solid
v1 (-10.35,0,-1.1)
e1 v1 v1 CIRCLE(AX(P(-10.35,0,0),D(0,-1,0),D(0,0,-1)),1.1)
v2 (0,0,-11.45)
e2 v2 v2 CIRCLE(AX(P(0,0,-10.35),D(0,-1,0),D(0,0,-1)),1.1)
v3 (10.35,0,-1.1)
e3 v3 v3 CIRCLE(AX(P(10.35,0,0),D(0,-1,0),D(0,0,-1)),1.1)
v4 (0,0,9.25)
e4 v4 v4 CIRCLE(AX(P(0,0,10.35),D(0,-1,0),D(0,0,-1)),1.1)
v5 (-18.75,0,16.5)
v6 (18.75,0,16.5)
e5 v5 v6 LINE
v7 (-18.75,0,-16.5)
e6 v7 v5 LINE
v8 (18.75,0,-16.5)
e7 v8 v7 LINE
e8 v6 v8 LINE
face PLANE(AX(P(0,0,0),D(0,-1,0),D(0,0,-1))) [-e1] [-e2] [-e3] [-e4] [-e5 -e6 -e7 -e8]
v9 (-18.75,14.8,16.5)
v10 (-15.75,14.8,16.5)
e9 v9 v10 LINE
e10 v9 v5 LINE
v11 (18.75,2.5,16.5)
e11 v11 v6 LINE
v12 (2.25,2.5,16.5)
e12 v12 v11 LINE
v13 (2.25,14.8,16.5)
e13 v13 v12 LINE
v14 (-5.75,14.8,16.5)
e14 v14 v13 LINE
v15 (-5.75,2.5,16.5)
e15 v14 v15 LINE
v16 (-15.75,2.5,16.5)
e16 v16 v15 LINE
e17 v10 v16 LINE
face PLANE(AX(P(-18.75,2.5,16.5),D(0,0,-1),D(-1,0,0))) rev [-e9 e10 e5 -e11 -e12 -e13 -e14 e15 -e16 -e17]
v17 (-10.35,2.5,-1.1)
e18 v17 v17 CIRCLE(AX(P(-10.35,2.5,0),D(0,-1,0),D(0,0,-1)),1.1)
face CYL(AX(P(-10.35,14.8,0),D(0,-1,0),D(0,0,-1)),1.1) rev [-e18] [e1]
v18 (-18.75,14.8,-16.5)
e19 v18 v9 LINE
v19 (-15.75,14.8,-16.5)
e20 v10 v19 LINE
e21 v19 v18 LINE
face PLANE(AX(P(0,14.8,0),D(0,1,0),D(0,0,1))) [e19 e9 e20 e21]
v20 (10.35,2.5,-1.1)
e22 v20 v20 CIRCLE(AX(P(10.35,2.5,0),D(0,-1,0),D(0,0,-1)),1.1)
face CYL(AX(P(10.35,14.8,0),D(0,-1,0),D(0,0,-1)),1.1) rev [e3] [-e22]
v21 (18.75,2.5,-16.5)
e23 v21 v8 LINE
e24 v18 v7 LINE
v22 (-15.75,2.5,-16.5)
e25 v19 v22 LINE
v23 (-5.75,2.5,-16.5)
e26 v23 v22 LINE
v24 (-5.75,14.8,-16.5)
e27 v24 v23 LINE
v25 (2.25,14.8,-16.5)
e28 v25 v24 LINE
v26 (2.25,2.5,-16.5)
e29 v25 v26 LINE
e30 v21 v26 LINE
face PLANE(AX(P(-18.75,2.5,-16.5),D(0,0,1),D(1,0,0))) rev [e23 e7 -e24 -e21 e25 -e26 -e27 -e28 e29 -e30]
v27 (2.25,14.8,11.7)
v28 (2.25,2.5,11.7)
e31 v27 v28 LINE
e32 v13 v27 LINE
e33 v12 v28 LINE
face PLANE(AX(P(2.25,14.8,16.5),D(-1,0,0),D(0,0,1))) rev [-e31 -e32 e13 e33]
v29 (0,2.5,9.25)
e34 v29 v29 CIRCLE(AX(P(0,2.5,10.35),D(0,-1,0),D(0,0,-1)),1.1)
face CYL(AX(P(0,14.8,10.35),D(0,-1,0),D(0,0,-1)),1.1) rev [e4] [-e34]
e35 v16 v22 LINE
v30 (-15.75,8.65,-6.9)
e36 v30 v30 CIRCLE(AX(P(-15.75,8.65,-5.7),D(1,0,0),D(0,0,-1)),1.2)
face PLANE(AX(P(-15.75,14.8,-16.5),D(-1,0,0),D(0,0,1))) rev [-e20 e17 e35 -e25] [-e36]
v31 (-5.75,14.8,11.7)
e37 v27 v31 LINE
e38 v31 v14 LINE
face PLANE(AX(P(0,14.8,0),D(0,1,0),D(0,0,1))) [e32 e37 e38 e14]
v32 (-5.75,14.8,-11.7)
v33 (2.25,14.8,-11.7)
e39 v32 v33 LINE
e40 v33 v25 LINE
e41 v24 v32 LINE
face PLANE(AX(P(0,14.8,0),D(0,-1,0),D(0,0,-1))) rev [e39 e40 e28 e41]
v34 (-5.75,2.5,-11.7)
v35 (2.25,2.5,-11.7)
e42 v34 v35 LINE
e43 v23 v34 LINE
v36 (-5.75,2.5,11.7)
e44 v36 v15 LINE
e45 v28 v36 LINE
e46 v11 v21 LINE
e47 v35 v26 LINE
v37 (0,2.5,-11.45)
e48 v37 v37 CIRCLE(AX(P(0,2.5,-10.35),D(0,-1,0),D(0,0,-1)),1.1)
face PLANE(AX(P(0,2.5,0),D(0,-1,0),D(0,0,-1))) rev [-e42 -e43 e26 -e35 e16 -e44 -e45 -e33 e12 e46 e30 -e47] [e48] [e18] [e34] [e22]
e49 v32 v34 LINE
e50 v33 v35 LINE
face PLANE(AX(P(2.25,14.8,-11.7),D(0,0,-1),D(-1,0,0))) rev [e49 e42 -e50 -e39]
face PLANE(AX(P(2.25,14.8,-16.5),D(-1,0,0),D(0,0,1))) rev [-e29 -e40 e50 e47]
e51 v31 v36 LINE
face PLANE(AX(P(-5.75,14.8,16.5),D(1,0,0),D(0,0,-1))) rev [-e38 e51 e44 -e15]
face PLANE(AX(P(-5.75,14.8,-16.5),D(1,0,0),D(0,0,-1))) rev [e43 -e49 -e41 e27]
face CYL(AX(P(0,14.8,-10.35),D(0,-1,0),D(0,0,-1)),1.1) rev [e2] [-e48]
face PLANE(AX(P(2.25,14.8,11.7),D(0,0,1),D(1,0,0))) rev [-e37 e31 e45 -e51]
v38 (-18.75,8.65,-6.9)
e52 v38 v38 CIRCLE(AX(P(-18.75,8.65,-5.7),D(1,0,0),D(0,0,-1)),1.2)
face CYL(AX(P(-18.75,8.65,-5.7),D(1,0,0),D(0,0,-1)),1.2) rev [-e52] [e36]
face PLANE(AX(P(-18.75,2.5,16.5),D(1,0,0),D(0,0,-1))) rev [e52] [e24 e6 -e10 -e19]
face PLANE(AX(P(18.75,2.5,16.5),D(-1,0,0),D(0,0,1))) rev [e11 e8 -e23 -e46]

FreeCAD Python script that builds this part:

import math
import FreeCAD as App
import Part
import Sketcher

V = App.Vector


def add_polygon(sketch, points):
    """Adds a closed chain of lines whose ends are joined by coincident constraints."""
    first, n = sketch.GeometryCount, len(points)
    for a, b in zip(points, points[1:] + points[:1]):
        sketch.addGeometry(Part.LineSegment(App.Vector(*a, 0), App.Vector(*b, 0)), False)
    for i in range(n):
        sketch.addConstraint(Sketcher.Constraint("Coincident", first + i, 2, first + (i + 1) % n, 1))

doc = App.newDocument("Part")
params = doc.addObject("Spreadsheet::Sheet", "Params")
for row, (alias, value) in enumerate([
    ("sketch1_height", "33 mm"),
    ("sketch1_width", "37.5 mm"),
    ("pad1_length", "2.5 mm"),
    ("sketch2_width", "3 mm"),
    ("sketch2_width2", "8 mm"),
    ("sketch2_height", "33 mm"),
    ("sketch2_height2", "4.8 mm"),
    ("pad2_length", "12.3 mm"),
    ("sketch3_radius", "1.1 mm"),
    ("sketch4_diameter", "2.4 mm"),
], start=1):
    params.set(f"A{row}", alias)
    params.set(f"B{row}", "=" + value)
    params.setAlias(f"B{row}", alias)

body = doc.addObject("PartDesign::Body", "Body")

sketch1 = doc.addObject("Sketcher::SketchObject", "Sketch")
body.addObject(sketch1)
sketch1.AttachmentSupport = (doc.XZ_Plane, [""])
sketch1.MapMode = "FlatFace"
add_polygon(sketch1, [(-19, -16), (-19, 16), (19, 16), (19, -16)])
sketch1.addConstraint([
    Sketcher.Constraint("Vertical", 0),
    Sketcher.Constraint("Horizontal", 1),
    Sketcher.Constraint("Vertical", 2),
    Sketcher.Constraint("Horizontal", 3),
    Sketcher.Constraint("Symmetric", 0, 2, 2, 2, -1, 1),
    Sketcher.Constraint("DistanceY", 0, 1, 0, 2, 33.0),
    Sketcher.Constraint("DistanceX", 1, 1, 1, 2, 37.5),
])
sketch1.setExpression("Constraints[9]", "Params.sketch1_height")
sketch1.setExpression("Constraints[10]", "Params.sketch1_width")
pad1 = doc.addObject("PartDesign::Pad", "Pad")
body.addObject(pad1)
pad1.Profile = sketch1
pad1.setExpression("Length", "Params.pad1_length")
pad1.Reversed = True

sketch2 = doc.addObject("Sketcher::SketchObject", "Sketch001")
body.addObject(sketch2)
sketch2.AttachmentSupport = (doc.XZ_Plane, [""])
sketch2.MapMode = "FlatFace"
sketch2.AttachmentOffset = App.Placement(V(0, 0, -2.5), App.Rotation())
add_polygon(sketch2, [(-18.8, -16.5), (-18.8, 16.5), (-15.8, 16.5), (-15.8, -16.5)])
add_polygon(sketch2, [(-5.8, 11.7), (-5.8, 16.5), (2.2, 16.5), (2.2, 11.7)])
add_polygon(sketch2, [(-5.8, -16.5), (-5.8, -11.7), (2.2, -11.7), (2.2, -16.5)])
sketch2.addConstraint([
    Sketcher.Constraint("Vertical", 0),
    Sketcher.Constraint("Horizontal", 1),
    Sketcher.Constraint("Vertical", 2),
    Sketcher.Constraint("Horizontal", 3),
    Sketcher.Constraint("Vertical", 4),
    Sketcher.Constraint("Horizontal", 5),
    Sketcher.Constraint("Vertical", 6),
    Sketcher.Constraint("Horizontal", 7),
    Sketcher.Constraint("Vertical", 8),
    Sketcher.Constraint("Horizontal", 9),
    Sketcher.Constraint("Vertical", 10),
    Sketcher.Constraint("Horizontal", 11),
    Sketcher.Constraint("Symmetric", 7, 2, 8, 2, -1),
    Sketcher.Constraint("Symmetric", 5, 2, 10, 2, -1),
    Sketcher.Constraint("Horizontal", 1, 2, 4, 2),
    Sketcher.Constraint("Horizontal", 3, 2, 10, 2),
    Sketcher.Constraint("DistanceX", 1, 1, 1, 2, 3.0),
    Sketcher.Constraint("DistanceX", 5, 1, 5, 2, 8.0),
    Sketcher.Constraint("DistanceY", 0, 1, 0, 2, 33.0),
    Sketcher.Constraint("DistanceY", 4, 1, 4, 2, 4.8),
    Sketcher.Constraint("DistanceX", 1, 2, 4, 2, 10.0),
    Sketcher.Constraint("DistanceX", 0, 2, -1, 1, 18.75),
])
sketch2.setExpression("Constraints[28]", "Params.sketch2_width")
sketch2.setExpression("Constraints[29]", "Params.sketch2_width2")
sketch2.setExpression("Constraints[30]", "Params.sketch2_height")
sketch2.setExpression("Constraints[31]", "Params.sketch2_height2")
pad2 = doc.addObject("PartDesign::Pad", "Pad001")
body.addObject(pad2)
pad2.Profile = sketch2
pad2.setExpression("Length", "Params.pad2_length")
pad2.Reversed = True

sketch3 = doc.addObject("Sketcher::SketchObject", "Sketch002")
body.addObject(sketch3)
sketch3.AttachmentSupport = (doc.XZ_Plane, [""])
sketch3.MapMode = "FlatFace"
sketch3.addGeometry([
    Part.ArcOfCircle(Part.Circle(V(-10.35, 0, 0), V(0, 0, 1), 1.1), math.radians(-87), math.radians(0)),
    Part.ArcOfCircle(Part.Circle(V(-10.35, 0, 0), V(0, 0, 1), 1.1), math.radians(0), math.radians(87)),
    Part.ArcOfCircle(Part.Circle(V(-10.35, 0, 0), V(0, 0, 1), 1.1), math.radians(87), math.radians(273)),
    Part.ArcOfCircle(Part.Circle(V(0, 10.35, 0), V(0, 0, 1), 1.1), math.radians(-177), math.radians(-3)),
    Part.ArcOfCircle(Part.Circle(V(0, 10.35, 0), V(0, 0, 1), 1.1), math.radians(-3.05), math.radians(0)),
    Part.ArcOfCircle(Part.Circle(V(0, 10.35, 0), V(0, 0, 1), 1.1), math.radians(0), math.radians(183)),
    Part.ArcOfCircle(Part.Circle(V(10.35, 0, 0), V(0, 0, 1), 1.1), math.radians(-93), math.radians(0)),
    Part.ArcOfCircle(Part.Circle(V(10.35, 0, 0), V(0, 0, 1), 1.1), math.radians(0), math.radians(93)),
    Part.ArcOfCircle(Part.Circle(V(10.35, 0, 0), V(0, 0, 1), 1.1), math.radians(93), math.radians(267)),
    Part.ArcOfCircle(Part.Circle(V(0, -10.35, 0), V(0, 0, 1), 1.1), math.radians(177), math.radians(360)),
    Part.ArcOfCircle(Part.Circle(V(0, -10.35, 0), V(0, 0, 1), 1.1), math.radians(0), math.radians(3.05)),
    Part.ArcOfCircle(Part.Circle(V(0, -10.35, 0), V(0, 0, 1), 1.1), math.radians(3), math.radians(177)),
], False)
sketch3.addConstraint([
    Sketcher.Constraint("Tangent", 0, 2, 1, 1),
    Sketcher.Constraint("Tangent", 1, 2, 2, 1),
    Sketcher.Constraint("Tangent", 2, 2, 0, 1),
    Sketcher.Constraint("Tangent", 3, 2, 4, 1),
    Sketcher.Constraint("Tangent", 4, 2, 5, 1),
    Sketcher.Constraint("Tangent", 5, 2, 3, 1),
    Sketcher.Constraint("Tangent", 6, 2, 7, 1),
    Sketcher.Constraint("Tangent", 7, 2, 8, 1),
    Sketcher.Constraint("Tangent", 8, 2, 6, 1),
    Sketcher.Constraint("Tangent", 9, 2, 10, 1),
    Sketcher.Constraint("Tangent", 10, 2, 11, 1),
    Sketcher.Constraint("Tangent", 11, 2, 9, 1),
    Sketcher.Constraint("Equal", 2, 3),
    Sketcher.Constraint("Equal", 5, 6),
    Sketcher.Constraint("Equal", 8, 9),
    Sketcher.Constraint("Symmetric", 0, 3, 6, 3, -1, 1),
    Sketcher.Constraint("Symmetric", 3, 3, 9, 3, -1, 1),
    Sketcher.Constraint("Symmetric", 3, 2, 5, 2, -2),
    Sketcher.Constraint("Symmetric", 1, 2, 7, 2, -2),
    Sketcher.Constraint("PointOnObject", 0, 2, -1),
    Sketcher.Constraint("PointOnObject", 6, 2, -1),
    Sketcher.Constraint("Horizontal", 5, 3, 4, 2),
    Sketcher.Constraint("Horizontal", 2, 2, 8, 2),
    Sketcher.Constraint("Horizontal", 11, 3, 9, 2),
    Sketcher.Constraint("Horizontal", 10, 2, 11, 2),
    Sketcher.Constraint("Vertical", 1, 2, 2, 2),
    Sketcher.Constraint("Vertical", 3, 2, 10, 2),
    Sketcher.Constraint("Radius", 0, 1.1),
    Sketcher.Constraint("DistanceX", 2, 3, 6, 3, 20.7),
    Sketcher.Constraint("DistanceY", -1, 1, 3, 3, 10.35),
    Sketcher.Constraint("DistanceX", 3, 2, 7, 2, 9.1931),
    Sketcher.Constraint("DistanceY", 7, 2, 3, 2, 9.1931),
])
sketch3.setExpression("Constraints[27]", "Params.sketch3_radius")
pocket1 = doc.addObject("PartDesign::Pocket", "Pocket")
body.addObject(pocket1)
pocket1.Profile = sketch3
pocket1.Type = "ThroughAll"

sketch4 = doc.addObject("Sketcher::SketchObject", "Sketch003")
body.addObject(sketch4)
sketch4.AttachmentSupport = (doc.YZ_Plane, [""])
sketch4.MapMode = "FlatFace"
sketch4.AttachmentOffset = App.Placement(V(0, 0, -15.75), App.Rotation())
sketch4.addGeometry(Part.Circle(V(8.7, -5.7, 0), V(0, 0, 1), 1.2), False)
sketch4.addConstraint([
    Sketcher.Constraint("Diameter", 0, 2.4),
    Sketcher.Constraint("DistanceY", 0, 3, -1, 1, 5.7),
    Sketcher.Constraint("DistanceX", -1, 1, 0, 3, 8.65),
])
sketch4.setExpression("Constraints[0]", "Params.sketch4_diameter")
pocket2 = doc.addObject("PartDesign::Pocket", "Pocket001")
body.addObject(pocket2)
pocket2.Profile = sketch4
pocket2.Type = "ThroughAll"

doc.recompute()
